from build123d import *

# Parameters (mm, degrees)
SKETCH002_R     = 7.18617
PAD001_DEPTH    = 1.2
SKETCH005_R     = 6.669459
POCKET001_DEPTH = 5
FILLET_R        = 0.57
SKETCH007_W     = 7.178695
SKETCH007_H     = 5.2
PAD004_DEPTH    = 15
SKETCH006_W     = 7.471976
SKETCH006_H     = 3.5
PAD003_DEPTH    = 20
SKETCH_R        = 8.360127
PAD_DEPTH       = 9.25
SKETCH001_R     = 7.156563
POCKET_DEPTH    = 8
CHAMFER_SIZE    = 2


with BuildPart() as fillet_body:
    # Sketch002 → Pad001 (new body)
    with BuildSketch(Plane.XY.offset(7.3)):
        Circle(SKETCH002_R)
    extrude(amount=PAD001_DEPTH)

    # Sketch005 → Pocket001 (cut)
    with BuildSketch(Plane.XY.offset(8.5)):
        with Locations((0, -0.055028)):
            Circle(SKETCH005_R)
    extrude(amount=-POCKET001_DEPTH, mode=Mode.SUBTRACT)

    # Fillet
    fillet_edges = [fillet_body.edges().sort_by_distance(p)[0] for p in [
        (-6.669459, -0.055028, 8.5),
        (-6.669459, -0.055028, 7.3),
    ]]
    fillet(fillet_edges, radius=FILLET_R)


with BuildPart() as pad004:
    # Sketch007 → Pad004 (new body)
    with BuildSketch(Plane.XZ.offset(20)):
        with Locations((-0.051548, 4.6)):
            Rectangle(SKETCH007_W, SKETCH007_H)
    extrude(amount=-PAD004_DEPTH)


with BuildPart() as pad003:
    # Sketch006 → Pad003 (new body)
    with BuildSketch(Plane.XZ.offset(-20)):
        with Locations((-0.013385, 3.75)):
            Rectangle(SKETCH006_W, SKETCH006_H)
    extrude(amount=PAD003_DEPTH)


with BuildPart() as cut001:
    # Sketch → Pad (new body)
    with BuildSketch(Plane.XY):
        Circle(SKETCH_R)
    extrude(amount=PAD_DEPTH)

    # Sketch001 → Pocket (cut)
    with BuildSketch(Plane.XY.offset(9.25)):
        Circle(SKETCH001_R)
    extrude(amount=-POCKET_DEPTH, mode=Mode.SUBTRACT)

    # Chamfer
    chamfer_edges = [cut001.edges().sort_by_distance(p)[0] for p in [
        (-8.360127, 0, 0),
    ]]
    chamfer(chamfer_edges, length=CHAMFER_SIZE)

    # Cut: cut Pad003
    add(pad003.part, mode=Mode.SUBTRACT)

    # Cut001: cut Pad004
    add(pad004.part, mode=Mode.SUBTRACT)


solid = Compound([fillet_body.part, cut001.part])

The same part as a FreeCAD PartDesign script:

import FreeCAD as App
import Part
import Sketcher
from FreeCAD import Vector


def edges_at(feature, points):
    """Names of the edges that pass closest to the given points."""
    edges = feature.Shape.Edges
    near = lambda p: min(range(len(edges)), key=lambda i: edges[i].distToShape(Part.Vertex(*p))[0])
    return sorted({f"Edge{near(p) + 1}" for p in points})


def add_polygon(sketch, points):
    """Adds a closed chain of lines whose ends are joined by coincident constraints."""
    first, n = sketch.GeometryCount, len(points)
    for a, b in zip(points, points[1:] + points[:1]):
        sketch.addGeometry(Part.LineSegment(App.Vector(*a, 0), App.Vector(*b, 0)), False)
    for i in range(n):
        sketch.addConstraint(Sketcher.Constraint("Coincident", first + i, 2, first + (i + 1) % n, 1))

doc = App.newDocument("Part")
params = doc.addObject("Spreadsheet::Sheet", "Params")
for row, (alias, value) in enumerate([
    ("pad1_length", "1.2 mm"),
    ("pocket1_length", "5 mm"),
    ("fillet_radius", "0.57 mm"),
    ("sketch3_height", "5.2 mm"),
    ("pad2_length", "15 mm"),
    ("sketch4_height", "3.5 mm"),
    ("pad3_length", "20 mm"),
    ("pad4_length", "9.25 mm"),
    ("pocket2_length", "8 mm"),
    ("chamfer_size", "2 mm"),
], start=1):
    params.set(f"A{row}", alias)
    params.set(f"B{row}", "=" + value)
    params.setAlias(f"B{row}", alias)

body = doc.addObject("PartDesign::Body", "Body")

# Sketch on XY plane
sketch1 = doc.addObject("Sketcher::SketchObject", "Sketch")
body.addObject(sketch1)
sketch1.AttachmentSupport = (doc.XY_Plane, [""])
sketch1.MapMode = "FlatFace"
sketch1.AttachmentOffset = App.Placement(Vector(0, 0, 7.3), App.Rotation())
sketch1.addGeometry(Part.Circle(Vector(0, 0, 0), Vector(0, 0, 1), 7), False)
sketch1.addConstraint([
    Sketcher.Constraint("Coincident", 0, 3, -1, 1),
    Sketcher.Constraint("Diameter", 0, 14.37234),
])
pad1 = doc.addObject("PartDesign::Pad", "Pad")
body.addObject(pad1)
pad1.Profile = sketch1
pad1.setExpression("Length", "Params.pad1_length")

# Sketch on XY plane
sketch2 = doc.addObject("Sketcher::SketchObject", "Sketch001")
body.addObject(sketch2)
sketch2.AttachmentSupport = (doc.XY_Plane, [""])
sketch2.MapMode = "FlatFace"
sketch2.AttachmentOffset = App.Placement(Vector(0, 0, 8.5), App.Rotation())
sketch2.addGeometry(Part.Circle(Vector(0, 0, 0), Vector(0, 0, 1), 7), False)
sketch2.addConstraint([
    Sketcher.Constraint("PointOnObject", 0, 3, -2),
    Sketcher.Constraint("Diameter", 0, 13.338918),
    Sketcher.Constraint("DistanceY", 0, 3, -1, 1, 0.055028),
])
pocket1 = doc.addObject("PartDesign::Pocket", "Pocket")
body.addObject(pocket1)
pocket1.Profile = sketch2
pocket1.setExpression("Length", "Params.pocket1_length")
doc.recompute()

fillet = doc.addObject("PartDesign::Fillet", "Fillet")
body.addObject(fillet)
fillet.Base = (pocket1, edges_at(pocket1, [(-6.669, -0.055, 8.5), (-6.669, -0.055, 7.3)]))
fillet.setExpression("Radius", "Params.fillet_radius")
body2 = doc.addObject("PartDesign::Body", "Body001")

# Sketch on XZ plane
sketch3 = doc.addObject("Sketcher::SketchObject", "Sketch002")
body2.addObject(sketch3)
sketch3.AttachmentSupport = (doc.getObject("XZ_Plane001"), [""])
sketch3.MapMode = "FlatFace"
sketch3.AttachmentOffset = App.Placement(Vector(0, 0, 20), App.Rotation())
add_polygon(sketch3, [(-4, 7), (-4, 2), (4, 2), (4, 7)])  # lines 0-3
sketch3.addConstraint([
    Sketcher.Constraint("Vertical", 0),
    Sketcher.Constraint("Horizontal", 1),
    Sketcher.Constraint("Vertical", 2),
    Sketcher.Constraint("Horizontal", 3),
    Sketcher.Constraint("DistanceY", 0, 2, 0, 1, 5.2),
    Sketcher.Constraint("DistanceY", -1, 1, 0, 2, 2.0),
    Sketcher.Constraint("DistanceX", -1, 1, 1, 2, 3.5378),
    Sketcher.Constraint("DistanceX", 1, 1, 1, 2, 7.178695),
])
sketch3.setExpression("Constraints[8]", "Params.sketch3_height")
pad2 = doc.addObject("PartDesign::Pad", "Pad001")
body2.addObject(pad2)
pad2.Profile = sketch3
pad2.setExpression("Length", "Params.pad2_length")
pad2.Reversed = True
body3 = doc.addObject("PartDesign::Body", "Body002")

# Sketch on XZ plane
sketch4 = doc.addObject("Sketcher::SketchObject", "Sketch003")
body3.addObject(sketch4)
sketch4.AttachmentSupport = (doc.getObject("XZ_Plane002"), [""])
sketch4.MapMode = "FlatFace"
sketch4.AttachmentOffset = App.Placement(Vector(0, 0, -20), App.Rotation())
add_polygon(sketch4, [(-3.7, 5.5), (-3.7, 2), (3.7, 2), (3.7, 5.5)])  # lines 0-3
sketch4.addConstraint([
    Sketcher.Constraint("Vertical", 0),
    Sketcher.Constraint("Horizontal", 1),
    Sketcher.Constraint("Vertical", 2),
    Sketcher.Constraint("Horizontal", 3),
    Sketcher.Constraint("DistanceY", 0, 2, 0, 1, 3.5),
    Sketcher.Constraint("DistanceY", -1, 1, 0, 2, 2.0),
    Sketcher.Constraint("DistanceX", 1, 1, 1, 2, 7.471976),
    Sketcher.Constraint("DistanceX", 0, 2, -1, 1, 3.749373),
])
sketch4.setExpression("Constraints[8]", "Params.sketch4_height")
pad3 = doc.addObject("PartDesign::Pad", "Pad002")
body3.addObject(pad3)
pad3.Profile = sketch4
pad3.setExpression("Length", "Params.pad3_length")
body4 = doc.addObject("PartDesign::Body", "Body003")

# Sketch on XY plane
sketch5 = doc.addObject("Sketcher::SketchObject", "Sketch004")
body4.addObject(sketch5)
sketch5.AttachmentSupport = (doc.getObject("XY_Plane003"), [""])
sketch5.MapMode = "FlatFace"
sketch5.addGeometry(Part.Circle(Vector(0, 0, 0), Vector(0, 0, 1), 8), False)
sketch5.addConstraint([
    Sketcher.Constraint("Coincident", 0, 3, -1, 1),
    Sketcher.Constraint("Diameter", 0, 16.720254),
])
pad4 = doc.addObject("PartDesign::Pad", "Pad003")
body4.addObject(pad4)
pad4.Profile = sketch5
pad4.setExpression("Length", "Params.pad4_length")

# Sketch on XY plane
sketch6 = doc.addObject("Sketcher::SketchObject", "Sketch005")
body4.addObject(sketch6)
sketch6.AttachmentSupport = (doc.getObject("XY_Plane003"), [""])
sketch6.MapMode = "FlatFace"
sketch6.AttachmentOffset = App.Placement(Vector(0, 0, 9.25), App.Rotation())
sketch6.addGeometry(Part.Circle(Vector(0, 0, 0), Vector(0, 0, 1), 7), False)
sketch6.addConstraint([
    Sketcher.Constraint("Coincident", 0, 3, -1, 1),
    Sketcher.Constraint("Diameter", 0, 14.313126),
])
pocket2 = doc.addObject("PartDesign::Pocket", "Pocket001")
body4.addObject(pocket2)
pocket2.Profile = sketch6
pocket2.setExpression("Length", "Params.pocket2_length")
doc.recompute()

chamfer = doc.addObject("PartDesign::Chamfer", "Chamfer")
body4.addObject(chamfer)
chamfer.Base = (pocket2, edges_at(pocket2, [(-8.36, 0, 0)]))
chamfer.setExpression("Size", "Params.chamfer_size")
doc.recompute()

boolean = doc.addObject("PartDesign::Boolean", "Boolean")
body4.addObject(boolean)
boolean.Type = "Cut"
boolean.addObjects([body3])
doc.recompute()

boolean2 = doc.addObject("PartDesign::Boolean", "Boolean001")
body4.addObject(boolean2)
boolean2.Type = "Cut"
boolean2.addObjects([body2])

doc.recompute()
